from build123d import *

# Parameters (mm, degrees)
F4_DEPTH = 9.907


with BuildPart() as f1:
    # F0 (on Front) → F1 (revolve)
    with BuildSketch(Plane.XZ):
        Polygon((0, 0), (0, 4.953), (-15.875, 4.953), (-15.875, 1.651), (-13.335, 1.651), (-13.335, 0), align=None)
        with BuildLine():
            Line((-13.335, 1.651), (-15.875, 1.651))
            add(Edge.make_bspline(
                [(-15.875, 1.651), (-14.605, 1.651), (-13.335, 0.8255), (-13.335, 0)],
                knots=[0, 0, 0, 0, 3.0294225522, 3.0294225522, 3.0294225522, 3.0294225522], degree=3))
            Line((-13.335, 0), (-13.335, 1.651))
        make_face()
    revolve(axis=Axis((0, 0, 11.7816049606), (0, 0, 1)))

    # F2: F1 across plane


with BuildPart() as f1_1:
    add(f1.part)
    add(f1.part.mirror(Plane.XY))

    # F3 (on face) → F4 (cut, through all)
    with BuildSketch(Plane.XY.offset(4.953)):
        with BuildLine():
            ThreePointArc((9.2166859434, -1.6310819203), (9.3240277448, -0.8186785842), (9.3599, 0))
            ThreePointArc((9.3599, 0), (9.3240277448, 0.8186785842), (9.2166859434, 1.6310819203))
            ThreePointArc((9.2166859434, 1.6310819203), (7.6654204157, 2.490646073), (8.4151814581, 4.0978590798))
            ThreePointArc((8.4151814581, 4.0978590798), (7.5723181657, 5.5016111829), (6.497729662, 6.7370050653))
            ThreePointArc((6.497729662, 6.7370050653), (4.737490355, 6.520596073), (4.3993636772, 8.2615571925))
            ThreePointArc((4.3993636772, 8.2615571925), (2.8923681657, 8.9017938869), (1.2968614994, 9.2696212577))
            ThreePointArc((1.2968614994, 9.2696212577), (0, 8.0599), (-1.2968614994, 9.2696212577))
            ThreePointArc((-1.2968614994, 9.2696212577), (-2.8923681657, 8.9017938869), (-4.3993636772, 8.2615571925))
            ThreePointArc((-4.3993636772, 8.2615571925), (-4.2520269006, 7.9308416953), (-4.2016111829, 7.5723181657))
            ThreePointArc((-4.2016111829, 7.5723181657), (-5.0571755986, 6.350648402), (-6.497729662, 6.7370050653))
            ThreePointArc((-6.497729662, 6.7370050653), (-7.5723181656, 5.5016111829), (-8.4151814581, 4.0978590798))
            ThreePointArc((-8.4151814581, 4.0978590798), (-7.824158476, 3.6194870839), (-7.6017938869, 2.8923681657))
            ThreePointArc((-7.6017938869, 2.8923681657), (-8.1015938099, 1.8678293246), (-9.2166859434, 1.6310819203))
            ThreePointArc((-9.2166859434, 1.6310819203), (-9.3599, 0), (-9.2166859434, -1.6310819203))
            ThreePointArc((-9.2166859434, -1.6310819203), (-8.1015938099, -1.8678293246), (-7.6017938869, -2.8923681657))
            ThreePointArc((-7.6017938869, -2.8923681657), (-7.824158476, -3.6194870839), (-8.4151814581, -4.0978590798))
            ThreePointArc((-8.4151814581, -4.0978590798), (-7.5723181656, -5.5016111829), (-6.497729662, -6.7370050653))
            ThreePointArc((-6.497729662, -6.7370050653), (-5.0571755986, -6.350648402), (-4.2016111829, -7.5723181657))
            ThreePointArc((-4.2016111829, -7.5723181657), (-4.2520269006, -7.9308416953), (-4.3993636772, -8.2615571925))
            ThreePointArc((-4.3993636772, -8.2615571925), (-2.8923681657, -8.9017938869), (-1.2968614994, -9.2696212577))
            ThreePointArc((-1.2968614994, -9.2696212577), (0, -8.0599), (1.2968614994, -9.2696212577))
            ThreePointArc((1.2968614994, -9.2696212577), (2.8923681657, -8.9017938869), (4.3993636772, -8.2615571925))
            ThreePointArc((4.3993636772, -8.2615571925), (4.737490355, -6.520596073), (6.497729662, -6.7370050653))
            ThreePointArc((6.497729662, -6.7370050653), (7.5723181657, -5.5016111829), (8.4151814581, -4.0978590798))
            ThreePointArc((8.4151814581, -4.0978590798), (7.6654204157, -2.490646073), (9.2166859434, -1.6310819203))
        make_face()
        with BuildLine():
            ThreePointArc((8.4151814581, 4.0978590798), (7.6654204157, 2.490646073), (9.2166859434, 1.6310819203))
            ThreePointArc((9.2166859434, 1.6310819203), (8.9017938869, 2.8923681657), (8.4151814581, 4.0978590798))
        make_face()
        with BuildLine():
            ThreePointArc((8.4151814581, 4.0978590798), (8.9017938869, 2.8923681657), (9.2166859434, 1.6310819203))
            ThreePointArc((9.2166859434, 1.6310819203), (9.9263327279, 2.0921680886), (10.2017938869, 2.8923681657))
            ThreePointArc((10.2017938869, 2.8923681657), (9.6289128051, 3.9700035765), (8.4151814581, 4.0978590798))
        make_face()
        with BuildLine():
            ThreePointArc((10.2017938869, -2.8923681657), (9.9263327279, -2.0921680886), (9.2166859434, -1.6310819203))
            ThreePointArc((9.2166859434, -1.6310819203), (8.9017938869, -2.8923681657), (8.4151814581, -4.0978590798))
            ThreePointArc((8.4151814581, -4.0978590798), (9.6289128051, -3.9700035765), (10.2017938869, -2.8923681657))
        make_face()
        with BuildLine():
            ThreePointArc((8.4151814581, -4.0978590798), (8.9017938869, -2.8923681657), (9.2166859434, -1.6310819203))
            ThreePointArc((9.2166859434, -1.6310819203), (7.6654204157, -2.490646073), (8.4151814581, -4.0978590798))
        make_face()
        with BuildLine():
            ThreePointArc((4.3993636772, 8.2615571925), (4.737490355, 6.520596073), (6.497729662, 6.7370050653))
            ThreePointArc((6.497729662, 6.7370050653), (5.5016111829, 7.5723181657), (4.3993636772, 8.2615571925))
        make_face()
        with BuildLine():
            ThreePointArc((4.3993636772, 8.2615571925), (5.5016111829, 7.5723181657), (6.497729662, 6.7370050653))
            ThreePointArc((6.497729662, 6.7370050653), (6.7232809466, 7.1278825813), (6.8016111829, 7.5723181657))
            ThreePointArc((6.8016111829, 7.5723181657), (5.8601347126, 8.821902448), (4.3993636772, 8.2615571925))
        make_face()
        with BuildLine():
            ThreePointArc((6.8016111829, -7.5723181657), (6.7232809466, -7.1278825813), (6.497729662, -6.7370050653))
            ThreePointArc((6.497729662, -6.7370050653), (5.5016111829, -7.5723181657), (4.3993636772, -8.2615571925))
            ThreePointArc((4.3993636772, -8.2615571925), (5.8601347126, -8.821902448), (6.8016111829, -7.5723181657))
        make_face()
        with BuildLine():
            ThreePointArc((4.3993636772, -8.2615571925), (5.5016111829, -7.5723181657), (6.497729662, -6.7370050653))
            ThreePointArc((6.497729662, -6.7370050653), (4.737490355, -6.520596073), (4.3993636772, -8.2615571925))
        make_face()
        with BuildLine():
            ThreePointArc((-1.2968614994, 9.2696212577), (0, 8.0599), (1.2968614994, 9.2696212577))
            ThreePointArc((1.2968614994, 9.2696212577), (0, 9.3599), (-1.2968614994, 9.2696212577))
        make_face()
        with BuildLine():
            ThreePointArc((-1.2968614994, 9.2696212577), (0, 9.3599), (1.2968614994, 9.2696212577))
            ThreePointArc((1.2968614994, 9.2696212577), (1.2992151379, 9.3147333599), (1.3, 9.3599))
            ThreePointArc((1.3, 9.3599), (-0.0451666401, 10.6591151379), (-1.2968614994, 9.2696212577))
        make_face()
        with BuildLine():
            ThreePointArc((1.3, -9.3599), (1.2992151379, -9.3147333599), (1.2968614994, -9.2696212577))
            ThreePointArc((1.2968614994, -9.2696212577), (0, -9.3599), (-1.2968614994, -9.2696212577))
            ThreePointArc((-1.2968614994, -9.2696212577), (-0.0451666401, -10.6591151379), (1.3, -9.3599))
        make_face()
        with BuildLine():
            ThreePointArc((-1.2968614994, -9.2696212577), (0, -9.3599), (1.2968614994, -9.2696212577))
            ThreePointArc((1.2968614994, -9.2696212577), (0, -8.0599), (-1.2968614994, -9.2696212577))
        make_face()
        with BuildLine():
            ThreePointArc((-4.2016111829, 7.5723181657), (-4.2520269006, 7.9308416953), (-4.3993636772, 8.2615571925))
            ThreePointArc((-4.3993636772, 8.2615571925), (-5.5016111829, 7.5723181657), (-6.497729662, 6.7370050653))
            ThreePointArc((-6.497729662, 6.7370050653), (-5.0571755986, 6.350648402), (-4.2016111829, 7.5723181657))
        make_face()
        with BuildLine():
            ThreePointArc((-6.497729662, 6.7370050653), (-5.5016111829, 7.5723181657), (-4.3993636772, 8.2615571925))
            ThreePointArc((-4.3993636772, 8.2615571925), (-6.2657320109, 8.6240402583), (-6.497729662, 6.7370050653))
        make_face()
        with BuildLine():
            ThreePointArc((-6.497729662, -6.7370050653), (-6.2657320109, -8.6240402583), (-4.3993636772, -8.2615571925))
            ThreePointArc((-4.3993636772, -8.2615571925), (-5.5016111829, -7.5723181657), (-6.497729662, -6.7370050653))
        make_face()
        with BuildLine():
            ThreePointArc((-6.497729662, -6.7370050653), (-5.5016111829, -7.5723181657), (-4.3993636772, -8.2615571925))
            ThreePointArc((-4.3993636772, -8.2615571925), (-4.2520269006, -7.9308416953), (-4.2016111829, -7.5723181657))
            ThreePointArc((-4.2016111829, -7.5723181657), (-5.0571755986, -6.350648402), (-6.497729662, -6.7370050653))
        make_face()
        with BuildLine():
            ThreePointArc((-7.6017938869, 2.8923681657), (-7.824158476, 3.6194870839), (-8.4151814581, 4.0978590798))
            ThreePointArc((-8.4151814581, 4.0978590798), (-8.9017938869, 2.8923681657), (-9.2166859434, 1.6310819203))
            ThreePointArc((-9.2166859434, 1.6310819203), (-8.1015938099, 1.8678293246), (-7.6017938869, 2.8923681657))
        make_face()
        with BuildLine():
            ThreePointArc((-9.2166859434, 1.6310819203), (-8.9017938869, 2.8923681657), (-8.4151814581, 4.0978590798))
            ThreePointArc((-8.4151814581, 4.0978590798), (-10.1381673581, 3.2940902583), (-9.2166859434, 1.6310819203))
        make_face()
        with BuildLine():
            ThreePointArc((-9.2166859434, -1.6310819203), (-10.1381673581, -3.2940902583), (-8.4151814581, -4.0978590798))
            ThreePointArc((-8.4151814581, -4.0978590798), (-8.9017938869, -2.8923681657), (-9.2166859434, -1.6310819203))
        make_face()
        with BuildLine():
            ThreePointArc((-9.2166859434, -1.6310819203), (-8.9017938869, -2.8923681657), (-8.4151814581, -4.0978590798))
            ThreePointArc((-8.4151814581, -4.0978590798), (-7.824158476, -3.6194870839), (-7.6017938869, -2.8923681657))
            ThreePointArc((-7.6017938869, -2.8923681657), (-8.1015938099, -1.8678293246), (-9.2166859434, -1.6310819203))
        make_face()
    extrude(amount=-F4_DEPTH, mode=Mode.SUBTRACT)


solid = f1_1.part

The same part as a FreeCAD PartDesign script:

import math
import FreeCAD as App
import Part
import Sketcher

V = App.Vector
Q = App.Units.Quantity

doc = App.newDocument("Part")
body = doc.addObject("PartDesign::Body", "Body")

# Sketch on XZ plane
sketch1 = body.newObject("Sketcher::SketchObject", "Sketch")
sketch1.AttachmentSupport = (doc.getObject("XZ_Plane"), [""])
sketch1.MapMode = "FlatFace"
sketch1.addGeometry([
    Part.LineSegment(V(0, 0, 0), V(0, 4.953, 0)),  # 0
    Part.LineSegment(V(0, 4.953, 0), V(-15.875, 4.953, 0)),  # 1
    Part.LineSegment(V(-15.875, 4.953, 0), V(-15.875, 1.651, 0)),  # 2
    Part.BSplineCurve([V(-15.875, 1.651, 0), V(-14.605, 1.651, 0), V(-13.335, 0.8255, 0), V(-13.335, 0, 0)], [4, 4], [0, 3.029422552], False, 3, [1, 1, 1, 1], False),  # 3
    Part.LineSegment(V(-13.335, 0, 0), V(0, 0, 0)),  # 4
], False)
sketch1.addConstraint([
    Sketcher.Constraint("Block", 3),
    Sketcher.Constraint("Coincident", 0, 2, 1, 1),
    Sketcher.Constraint("Coincident", 1, 2, 2, 1),
    Sketcher.Constraint("Coincident", 2, 2, 3, 1),
    Sketcher.Constraint("Coincident", 3, 2, 4, 1),
    Sketcher.Constraint("Coincident", 4, 2, 0, 1),
    Sketcher.Constraint("Vertical", 0),
    Sketcher.Constraint("Horizontal", 1),
    Sketcher.Constraint("Vertical", 2),
    Sketcher.Constraint("Horizontal", 4),
    Sketcher.Constraint("PointOnObject", 0, 2, -2),
    Sketcher.Constraint("DistanceY", 2, 2, 2, 1, Q("0.13 in")),
])
revolution = body.newObject("PartDesign::Revolution", "Revolution")
revolution.Profile = sketch1
revolution.ReferenceAxis = (sketch1, ["V_Axis"])
revolution.Angle = 360
body2 = doc.addObject("PartDesign::Body", "Body001")
doc.recompute()

body2.BaseFeature = body
doc.recompute()

mirroring = doc.addObject("Part::Mirroring", "Mirroring")
mirroring.Source = body
mirroring.Base = V(0, 0, 0)
mirroring.Normal = V(0, 0, 1)
body3 = doc.addObject("PartDesign::Body", "Body002")
body3.BaseFeature = mirroring
boolean = body2.newObject("PartDesign::Boolean", "Boolean")
boolean.Type = "Fuse"
boolean.addObjects([body3])
doc.recompute()

# Sketch on XY plane
sketch2 = body2.newObject("Sketcher::SketchObject", "Sketch001")
sketch2.AttachmentSupport = (doc.getObject("XY_Plane001"), [""])
sketch2.MapMode = "FlatFace"
sketch2.AttachmentOffset = App.Placement(V(0, 0, 0.195 * 25.4), App.Rotation())
sketch2.addGeometry([
    Part.ArcOfCircle(Part.Circle(V(0, 0, 0), V(0, 0, 1), 9.36), math.radians(-10.04), math.radians(0)),  # 0
    Part.ArcOfCircle(Part.Circle(V(0, 0, 0), V(0, 0, 1), 9.36), math.radians(0), math.radians(10.04)),  # 1
    Part.ArcOfCircle(Part.Circle(V(8.9, 2.89, 0), V(0, 0, 1), 1.3), math.radians(-76), math.radians(0)),  # 2
    Part.ArcOfCircle(Part.Circle(V(8.9, 2.89, 0), V(0, 0, 1), 1.3), math.radians(0), math.radians(112)),  # 3
    Part.ArcOfCircle(Part.Circle(V(0, 0, 0), V(0, 0, 1), 9.36), math.radians(26), math.radians(46)),  # 4
    Part.ArcOfCircle(Part.Circle(V(5.5, 7.57, 0), V(0, 0, 1), 1.3), math.radians(-40), math.radians(0)),  # 5
    Part.ArcOfCircle(Part.Circle(V(5.5, 7.57, 0), V(0, 0, 1), 1.3), math.radians(0), math.radians(148)),  # 6
    Part.ArcOfCircle(Part.Circle(V(0, 0, 0), V(0, 0, 1), 9.36), math.radians(62), math.radians(82)),  # 7
    Part.ArcOfCircle(Part.Circle(V(0, 9.36, 0), V(0, 0, 1), 1.3), math.radians(-3.98), math.radians(0)),  # 8
    Part.ArcOfCircle(Part.Circle(V(0, 9.36, 0), V(0, 0, 1), 1.3), math.radians(0), math.radians(184)),  # 9
    Part.ArcOfCircle(Part.Circle(V(0, 0, 0), V(0, 0, 1), 9.36), math.radians(98), math.radians(118)),  # 10
    Part.ArcOfCircle(Part.Circle(V(-5.5, 7.57, 0), V(0, 0, 1), 1.3), math.radians(32), math.radians(220)),  # 11
    Part.ArcOfCircle(Part.Circle(V(0, 0, 0), V(0, 0, 1), 9.36), math.radians(134), math.radians(154)),  # 12
    Part.ArcOfCircle(Part.Circle(V(-8.9, 2.89, 0), V(0, 0, 1), 1.3), math.radians(68), math.radians(256)),  # 13
    Part.ArcOfCircle(Part.Circle(V(0, 0, 0), V(0, 0, 1), 9.36), math.radians(170), math.radians(190)),  # 14
    Part.ArcOfCircle(Part.Circle(V(-8.9, -2.89, 0), V(0, 0, 1), 1.3), math.radians(104), math.radians(292)),  # 15
    Part.ArcOfCircle(Part.Circle(V(0, 0, 0), V(0, 0, 1), 9.36), math.radians(-154), math.radians(-134)),  # 16
    Part.ArcOfCircle(Part.Circle(V(-5.5, -7.57, 0), V(0, 0, 1), 1.3), math.radians(140), math.radians(328)),  # 17
    Part.ArcOfCircle(Part.Circle(V(0, 0, 0), V(0, 0, 1), 9.36), math.radians(-118), math.radians(-98)),  # 18
    Part.ArcOfCircle(Part.Circle(V(0, -9.36, 0), V(0, 0, 1), 1.3), math.radians(176), math.radians(360)),  # 19
    Part.ArcOfCircle(Part.Circle(V(0, -9.36, 0), V(0, 0, 1), 1.3), math.radians(0), math.radians(3.98)),  # 20
    Part.ArcOfCircle(Part.Circle(V(0, 0, 0), V(0, 0, 1), 9.36), math.radians(-82), math.radians(-62)),  # 21
    Part.ArcOfCircle(Part.Circle(V(5.5, -7.57, 0), V(0, 0, 1), 1.3), math.radians(-148), math.radians(0)),  # 22
    Part.ArcOfCircle(Part.Circle(V(5.5, -7.57, 0), V(0, 0, 1), 1.3), math.radians(0), math.radians(40)),  # 23
    Part.ArcOfCircle(Part.Circle(V(0, 0, 0), V(0, 0, 1), 9.36), math.radians(-46), math.radians(-26)),  # 24
    Part.ArcOfCircle(Part.Circle(V(8.9, -2.89, 0), V(0, 0, 1), 1.3), math.radians(-112), math.radians(0)),  # 25
    Part.ArcOfCircle(Part.Circle(V(8.9, -2.89, 0), V(0, 0, 1), 1.3), math.radians(0), math.radians(76)),  # 26
], False)
sketch2.addConstraint([
    Sketcher.Constraint("Tangent", 0, 2, 1, 1),
    Sketcher.Constraint("Coincident", 1, 2, 2, 1),
    Sketcher.Constraint("Tangent", 2, 2, 3, 1),
    Sketcher.Constraint("Coincident", 3, 2, 4, 1),
    Sketcher.Constraint("Coincident", 4, 2, 5, 1),
    Sketcher.Constraint("Tangent", 5, 2, 6, 1),
    Sketcher.Constraint("Coincident", 6, 2, 7, 1),
    Sketcher.Constraint("Coincident", 7, 2, 8, 1),
    Sketcher.Constraint("Tangent", 8, 2, 9, 1),
    Sketcher.Constraint("Coincident", 9, 2, 10, 1),
    Sketcher.Constraint("Coincident", 10, 2, 11, 1),
    Sketcher.Constraint("Coincident", 11, 2, 12, 1),
    Sketcher.Constraint("Coincident", 12, 2, 13, 1),
    Sketcher.Constraint("Coincident", 13, 2, 14, 1),
    Sketcher.Constraint("Coincident", 14, 2, 15, 1),
    Sketcher.Constraint("Coincident", 15, 2, 16, 1),
    Sketcher.Constraint("Coincident", 16, 2, 17, 1),
    Sketcher.Constraint("Coincident", 17, 2, 18, 1),
    Sketcher.Constraint("Coincident", 18, 2, 19, 1),
    Sketcher.Constraint("Tangent", 19, 2, 20, 1),
    Sketcher.Constraint("Coincident", 20, 2, 21, 1),
    Sketcher.Constraint("Coincident", 21, 2, 22, 1),
    Sketcher.Constraint("Tangent", 22, 2, 23, 1),
    Sketcher.Constraint("Coincident", 23, 2, 24, 1),
    Sketcher.Constraint("Coincident", 24, 2, 25, 1),
    Sketcher.Constraint("Tangent", 25, 2, 26, 1),
    Sketcher.Constraint("Coincident", 26, 2, 0, 1),
    Sketcher.Constraint("Coincident", 0, 3, -1, 1),
    Sketcher.Constraint("Coincident", 4, 3, -1, 1),
    Sketcher.Constraint("Coincident", 7, 3, -1, 1),
    Sketcher.Constraint("Coincident", 10, 3, -1, 1),
    Sketcher.Constraint("Coincident", 12, 3, -1, 1),
    Sketcher.Constraint("Coincident", 14, 3, -1, 1),
    Sketcher.Constraint("Coincident", 16, 3, -1, 1),
    Sketcher.Constraint("Coincident", 18, 3, -1, 1),
    Sketcher.Constraint("Coincident", 21, 3, -1, 1),
    Sketcher.Constraint("Coincident", 24, 3, -1, 1),
    Sketcher.Constraint("Equal", 0, 1),
    Sketcher.Constraint("Equal", 2, 3),
    Sketcher.Constraint("Equal", 1, 4),
    Sketcher.Constraint("Equal", 3, 5),
    Sketcher.Constraint("Equal", 5, 6),
    Sketcher.Constraint("Equal", 4, 7),
    Sketcher.Constraint("Equal", 6, 8),
    Sketcher.Constraint("Equal", 8, 9),
    Sketcher.Constraint("Equal", 7, 10),
    Sketcher.Constraint("Equal", 9, 11),
    Sketcher.Constraint("Equal", 10, 12),
    Sketcher.Constraint("Equal", 11, 13),
    Sketcher.Constraint("Equal", 12, 14),
    Sketcher.Constraint("Equal", 13, 15),
    Sketcher.Constraint("Equal", 14, 16),
    Sketcher.Constraint("Equal", 15, 17),
    Sketcher.Constraint("Equal", 16, 18),
    Sketcher.Constraint("Equal", 17, 19),
    Sketcher.Constraint("Equal", 19, 20),
    Sketcher.Constraint("Equal", 18, 21),
    Sketcher.Constraint("Equal", 20, 22),
    Sketcher.Constraint("Equal", 22, 23),
    Sketcher.Constraint("Equal", 21, 24),
    Sketcher.Constraint("Equal", 23, 25),
    Sketcher.Constraint("Equal", 25, 26),
    Sketcher.Constraint("Symmetric", 2, 3, 15, 3, -1, 1),
    Sketcher.Constraint("Symmetric", 5, 3, 17, 3, -1, 1),
    Sketcher.Constraint("Symmetric", 8, 3, 19, 3, -1, 1),
    Sketcher.Constraint("Symmetric", 11, 3, 22, 3, -1, 1),
    Sketcher.Constraint("Symmetric", 13, 3, 25, 3, -1, 1),
    Sketcher.Constraint("Symmetric", 5, 3, 11, 3, -2),
    Sketcher.Constraint("Symmetric", 2, 3, 13, 3, -2),
    Sketcher.Constraint("Symmetric", 8, 2, 19, 2, -1),
    Sketcher.Constraint("PointOnObject", 0, 2, -1),
    Sketcher.Constraint("Horizontal", 13, 3, 2, 2),
    Sketcher.Constraint("Horizontal", 11, 3, 5, 2),
    Sketcher.Constraint("Horizontal", 9, 3, 8, 2),
    Sketcher.Constraint("Horizontal", 23, 3, 22, 2),
    Sketcher.Constraint("Horizontal", 26, 3, 25, 2),
    Sketcher.Constraint("Radius", 0, Q("0.3685 in")),
    Sketcher.Constraint("Radius", 2, 1.3),
    Sketcher.Constraint("DistanceY", -1, 1, 8, 3, Q("0.3685 in")),
    Sketcher.Constraint("DistanceY", 12, 2, 10, 2, 4.163698),
    Sketcher.Constraint("DistanceY", -1, 1, 2, 3, 2.892368),
    Sketcher.Constraint("DistanceX", -1, 1, 5, 3, 5.501611),
    Sketcher.Constraint("DistanceY", -1, 1, 5, 3, 7.572318),
])
pocket1 = body2.newObject("PartDesign::Pocket", "Pocket")
pocket1.Profile = sketch2
pocket1.Type = "ThroughAll"
mirroring.Visibility = False

doc.recompute()
